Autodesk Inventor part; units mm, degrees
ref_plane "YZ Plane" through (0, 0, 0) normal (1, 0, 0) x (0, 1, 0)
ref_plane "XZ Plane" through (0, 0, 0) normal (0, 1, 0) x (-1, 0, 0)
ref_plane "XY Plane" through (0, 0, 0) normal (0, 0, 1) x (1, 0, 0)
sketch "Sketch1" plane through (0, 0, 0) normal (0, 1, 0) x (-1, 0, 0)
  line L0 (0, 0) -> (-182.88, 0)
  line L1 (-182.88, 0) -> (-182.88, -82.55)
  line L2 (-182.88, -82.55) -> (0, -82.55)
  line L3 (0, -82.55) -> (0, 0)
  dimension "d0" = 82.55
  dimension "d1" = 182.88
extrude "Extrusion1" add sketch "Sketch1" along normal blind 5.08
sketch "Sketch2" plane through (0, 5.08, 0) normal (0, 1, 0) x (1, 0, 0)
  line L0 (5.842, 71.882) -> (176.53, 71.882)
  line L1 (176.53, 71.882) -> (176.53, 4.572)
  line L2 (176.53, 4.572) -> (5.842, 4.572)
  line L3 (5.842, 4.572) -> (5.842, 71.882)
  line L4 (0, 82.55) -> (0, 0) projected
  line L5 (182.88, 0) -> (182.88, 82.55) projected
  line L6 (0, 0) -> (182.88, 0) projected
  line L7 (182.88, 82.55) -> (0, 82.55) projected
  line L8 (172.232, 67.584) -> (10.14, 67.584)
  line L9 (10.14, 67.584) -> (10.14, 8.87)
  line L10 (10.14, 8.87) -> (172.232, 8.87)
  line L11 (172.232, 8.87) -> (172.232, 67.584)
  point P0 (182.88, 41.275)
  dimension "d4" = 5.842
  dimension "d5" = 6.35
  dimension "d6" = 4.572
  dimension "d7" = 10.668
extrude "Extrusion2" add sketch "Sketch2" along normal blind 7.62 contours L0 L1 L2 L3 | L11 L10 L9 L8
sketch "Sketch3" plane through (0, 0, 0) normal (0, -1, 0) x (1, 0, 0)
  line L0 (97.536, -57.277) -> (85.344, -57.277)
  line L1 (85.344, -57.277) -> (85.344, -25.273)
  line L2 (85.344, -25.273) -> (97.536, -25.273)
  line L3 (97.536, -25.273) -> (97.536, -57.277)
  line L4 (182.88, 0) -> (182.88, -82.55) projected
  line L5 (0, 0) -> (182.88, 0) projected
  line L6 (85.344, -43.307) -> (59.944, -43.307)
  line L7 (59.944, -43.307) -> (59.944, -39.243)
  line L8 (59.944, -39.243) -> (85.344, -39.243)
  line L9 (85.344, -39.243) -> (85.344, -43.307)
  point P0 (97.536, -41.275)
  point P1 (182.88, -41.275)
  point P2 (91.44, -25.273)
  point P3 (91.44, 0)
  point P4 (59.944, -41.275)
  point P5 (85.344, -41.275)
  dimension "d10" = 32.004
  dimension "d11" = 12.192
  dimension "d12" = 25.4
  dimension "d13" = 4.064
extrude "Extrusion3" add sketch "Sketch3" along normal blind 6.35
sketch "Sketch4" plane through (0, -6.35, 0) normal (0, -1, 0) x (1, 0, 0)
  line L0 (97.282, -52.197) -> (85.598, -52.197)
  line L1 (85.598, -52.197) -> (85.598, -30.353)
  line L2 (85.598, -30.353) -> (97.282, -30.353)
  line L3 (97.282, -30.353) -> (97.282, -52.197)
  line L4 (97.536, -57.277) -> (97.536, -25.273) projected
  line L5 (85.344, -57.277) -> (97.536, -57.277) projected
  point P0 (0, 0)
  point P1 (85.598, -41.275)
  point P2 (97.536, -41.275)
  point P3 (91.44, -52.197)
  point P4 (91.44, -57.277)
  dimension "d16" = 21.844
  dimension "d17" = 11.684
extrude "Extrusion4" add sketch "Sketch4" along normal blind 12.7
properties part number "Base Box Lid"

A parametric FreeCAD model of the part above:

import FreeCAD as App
import Part
import Sketcher
from FreeCAD import Vector
Q = App.Units.Quantity

doc = App.newDocument("Part")
body = doc.addObject("PartDesign::Body", "Body")

# Sketch on XZ plane
sketch1 = body.newObject("Sketcher::SketchObject", "Sketch")
sketch1.AttachmentSupport = (doc.getObject("XZ_Plane"), [""])
sketch1.MapMode = "FlatFace"
sketch1.addGeometry([
    Part.LineSegment(Vector(0, -83, 0), Vector(0, 0, 0)),
    Part.LineSegment(Vector(0, 0, 0), Vector(183, 0, 0)),
    Part.LineSegment(Vector(183, 0, 0), Vector(183, -83, 0)),
    Part.LineSegment(Vector(183, -83, 0), Vector(0, -83, 0)),
], False)
sketch1.addConstraint([
    Sketcher.Constraint("Coincident", 0, 2, 1, 1),
    Sketcher.Constraint("Coincident", 1, 2, 2, 1),
    Sketcher.Constraint("Coincident", 2, 2, 3, 1),
    Sketcher.Constraint("Coincident", 3, 2, 0, 1),
    Sketcher.Constraint("Vertical", 0),
    Sketcher.Constraint("Horizontal", 1),
    Sketcher.Constraint("Vertical", 2),
    Sketcher.Constraint("Horizontal", 3),
    Sketcher.Constraint("Coincident", 0, 2, -1, 1),
    Sketcher.Constraint("DistanceX", 1, 1, 1, 2, Q("7.2 in")),
    Sketcher.Constraint("DistanceY", 0, 1, 0, 2, Q("3.25 in")),
])
pad1 = body.newObject("PartDesign::Pad", "Pad")
pad1.Profile = sketch1
pad1.Length = Q("0.2 in")
pad1.Reversed = True

# Sketch on XZ plane
sketch2 = body.newObject("Sketcher::SketchObject", "Sketch001")
sketch2.AttachmentSupport = (doc.getObject("XZ_Plane"), [""])
sketch2.MapMode = "FlatFace"
sketch2.AttachmentOffset = App.Placement(Vector(0, 0, -0.2 * 25.4), App.Rotation())
sketch2.addGeometry([
    Part.LineSegment(Vector(177, -72, 0), Vector(6, -72, 0)),
    Part.LineSegment(Vector(6, -72, 0), Vector(6, -5, 0)),
    Part.LineSegment(Vector(6, -5, 0), Vector(177, -5, 0)),
    Part.LineSegment(Vector(177, -5, 0), Vector(177, -72, 0)),
], False)
sketch2.addConstraint([
    Sketcher.Constraint("Coincident", 0, 2, 1, 1),
    Sketcher.Constraint("Coincident", 1, 2, 2, 1),
    Sketcher.Constraint("Coincident", 2, 2, 3, 1),
    Sketcher.Constraint("Coincident", 3, 2, 0, 1),
    Sketcher.Constraint("Horizontal", 0),
    Sketcher.Constraint("Vertical", 1),
    Sketcher.Constraint("Horizontal", 2),
    Sketcher.Constraint("Vertical", 3),
    Sketcher.Constraint("DistanceX", -1, 1, 0, 2, Q("0.23 in")),
    Sketcher.Constraint("DistanceY", 1, 2, -1, 1, Q("0.18 in")),
    Sketcher.Constraint("DistanceX", 0, 2, 0, 1, Q("6.72 in")),
    Sketcher.Constraint("DistanceY", 1, 1, 1, 2, Q("2.65 in")),
])
pad2 = body.newObject("PartDesign::Pad", "Pad001")
pad2.Profile = sketch2
pad2.Length = Q("0.3 in")
pad2.Reversed = True

# Sketch on XZ plane
sketch3 = body.newObject("Sketcher::SketchObject", "Sketch002")
sketch3.AttachmentSupport = (doc.getObject("XZ_Plane"), [""])
sketch3.MapMode = "FlatFace"
sketch3.addGeometry([
    Part.LineSegment(Vector(85.3, -57.3, 0), Vector(97.5, -57.3, 0)),  # 0
    Part.LineSegment(Vector(97.5, -57.3, 0), Vector(97.5, -25.3, 0)),  # 1
    Part.LineSegment(Vector(97.5, -25.3, 0), Vector(85.3, -25.3, 0)),  # 2
    Part.LineSegment(Vector(85.3, -25.3, 0), Vector(85.3, -39.2, 0)),  # 3
    Part.LineSegment(Vector(85.3, -39.2, 0), Vector(59.9, -39.2, 0)),  # 4
    Part.LineSegment(Vector(59.9, -39.2, 0), Vector(59.9, -43.3, 0)),  # 5
    Part.LineSegment(Vector(59.9, -43.3, 0), Vector(85.3, -43.3, 0)),  # 6
    Part.LineSegment(Vector(85.3, -43.3, 0), Vector(85.3, -57.3, 0)),  # 7
], False)
sketch3.addConstraint([
    Sketcher.Constraint("Coincident", 0, 2, 1, 1),
    Sketcher.Constraint("Coincident", 1, 2, 2, 1),
    Sketcher.Constraint("Coincident", 2, 2, 3, 1),
    Sketcher.Constraint("Coincident", 3, 2, 4, 1),
    Sketcher.Constraint("Coincident", 4, 2, 5, 1),
    Sketcher.Constraint("Coincident", 5, 2, 6, 1),
    Sketcher.Constraint("Coincident", 6, 2, 7, 1),
    Sketcher.Constraint("Coincident", 7, 2, 0, 1),
    Sketcher.Constraint("Horizontal", 0),
    Sketcher.Constraint("Vertical", 1),
    Sketcher.Constraint("Horizontal", 2),
    Sketcher.Constraint("Vertical", 3),
    Sketcher.Constraint("Horizontal", 4),
    Sketcher.Constraint("Vertical", 5),
    Sketcher.Constraint("Horizontal", 6),
    Sketcher.Constraint("Vertical", 7),
    Sketcher.Constraint("Vertical", 3, 2, 6, 2),
    Sketcher.Constraint("Equal", 3, 7),
    Sketcher.Constraint("DistanceX", 4, 2, 4, 1, Q("1 in")),
    Sketcher.Constraint("DistanceX", 0, 1, 0, 2, Q("0.48 in")),
    Sketcher.Constraint("DistanceY", 1, 1, 1, 2, Q("1.26 in")),
    Sketcher.Constraint("DistanceY", 5, 2, 5, 1, Q("0.16 in")),
    Sketcher.Constraint("DistanceX", -1, 1, 0, 2, Q("3.84 in")),
    Sketcher.Constraint("DistanceY", 0, 2, -1, 1, Q("2.255 in")),
])
pad3 = body.newObject("PartDesign::Pad", "Pad002")
pad3.Profile = sketch3
pad3.Length = Q("0.25 in")

# Sketch on XZ plane
sketch4 = body.newObject("Sketcher::SketchObject", "Sketch003")
sketch4.AttachmentSupport = (doc.getObject("XZ_Plane"), [""])
sketch4.MapMode = "FlatFace"
sketch4.AttachmentOffset = App.Placement(Vector(0, 0, 0.25 * 25.4), App.Rotation())
sketch4.addGeometry([
    Part.LineSegment(Vector(86, -52, 0), Vector(97, -52, 0)),
    Part.LineSegment(Vector(97, -52, 0), Vector(97, -30, 0)),
    Part.LineSegment(Vector(97, -30, 0), Vector(86, -30, 0)),
    Part.LineSegment(Vector(86, -30, 0), Vector(86, -52, 0)),
], False)
sketch4.addConstraint([
    Sketcher.Constraint("Coincident", 0, 2, 1, 1),
    Sketcher.Constraint("Coincident", 1, 2, 2, 1),
    Sketcher.Constraint("Coincident", 2, 2, 3, 1),
    Sketcher.Constraint("Coincident", 3, 2, 0, 1),
    Sketcher.Constraint("Horizontal", 0),
    Sketcher.Constraint("Vertical", 1),
    Sketcher.Constraint("Horizontal", 2),
    Sketcher.Constraint("Vertical", 3),
    Sketcher.Constraint("DistanceX", 0, 1, 0, 2, Q("0.46 in")),
    Sketcher.Constraint("DistanceY", 1, 1, 1, 2, Q("0.86 in")),
    Sketcher.Constraint("DistanceX", -1, 1, 0, 2, Q("3.83 in")),
    Sketcher.Constraint("DistanceY", 0, 2, -1, 1, Q("2.055 in")),
])
pad4 = body.newObject("PartDesign::Pad", "Pad003")
pad4.Profile = sketch4
pad4.Length = Q("0.5 in")

doc.recompute()
